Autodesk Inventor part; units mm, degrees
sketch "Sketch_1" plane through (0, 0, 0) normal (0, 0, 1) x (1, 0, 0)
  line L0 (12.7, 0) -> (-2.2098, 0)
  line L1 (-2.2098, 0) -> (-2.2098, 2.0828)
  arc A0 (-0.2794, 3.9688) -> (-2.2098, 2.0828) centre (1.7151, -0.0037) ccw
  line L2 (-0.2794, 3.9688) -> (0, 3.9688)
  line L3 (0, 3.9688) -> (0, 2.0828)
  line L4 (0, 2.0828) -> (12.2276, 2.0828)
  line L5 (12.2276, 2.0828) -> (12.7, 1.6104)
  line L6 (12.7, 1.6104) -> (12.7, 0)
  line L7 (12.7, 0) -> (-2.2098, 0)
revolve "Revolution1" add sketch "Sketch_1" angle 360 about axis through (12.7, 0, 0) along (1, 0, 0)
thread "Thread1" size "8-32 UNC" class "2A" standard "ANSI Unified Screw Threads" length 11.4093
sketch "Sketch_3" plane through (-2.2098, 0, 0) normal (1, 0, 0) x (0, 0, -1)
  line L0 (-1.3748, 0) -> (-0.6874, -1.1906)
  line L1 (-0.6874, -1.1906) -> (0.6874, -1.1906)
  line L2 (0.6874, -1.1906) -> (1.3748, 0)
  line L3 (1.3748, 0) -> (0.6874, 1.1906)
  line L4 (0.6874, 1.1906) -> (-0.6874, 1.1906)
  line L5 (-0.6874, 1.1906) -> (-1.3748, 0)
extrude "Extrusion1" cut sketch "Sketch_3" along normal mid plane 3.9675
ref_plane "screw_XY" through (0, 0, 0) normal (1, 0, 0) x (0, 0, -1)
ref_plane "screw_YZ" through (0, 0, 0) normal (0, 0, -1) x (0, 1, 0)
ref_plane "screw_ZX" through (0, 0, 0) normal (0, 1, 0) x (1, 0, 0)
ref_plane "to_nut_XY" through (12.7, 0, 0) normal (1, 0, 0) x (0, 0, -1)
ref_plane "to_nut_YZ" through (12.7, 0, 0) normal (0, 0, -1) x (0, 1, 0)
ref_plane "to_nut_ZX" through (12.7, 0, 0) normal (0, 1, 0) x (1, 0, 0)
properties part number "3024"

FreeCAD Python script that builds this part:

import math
import FreeCAD as App
import Part
import Sketcher

V = App.Vector
Q = App.Units.Quantity


def add_polygon(sketch, points):
    """Adds a closed chain of lines whose ends are joined by coincident constraints."""
    first, n = sketch.GeometryCount, len(points)
    for a, b in zip(points, points[1:] + points[:1]):
        sketch.addGeometry(Part.LineSegment(App.Vector(*a, 0), App.Vector(*b, 0)), False)
    for i in range(n):
        sketch.addConstraint(Sketcher.Constraint("Coincident", first + i, 2, first + (i + 1) % n, 1))

doc = App.newDocument("Part")
body = doc.addObject("PartDesign::Body", "Body")

# Sketch on XY plane
sketch1 = doc.addObject("Sketcher::SketchObject", "Sketch")
body.addObject(sketch1)
sketch1.AttachmentSupport = (doc.XY_Plane, [""])
sketch1.MapMode = "FlatFace"
sketch1.addGeometry(Part.LineSegment(V(-2.21, 0, 0), V(12.7, 0, 0)), False)
sketch1.addGeometry(Part.LineSegment(V(12.7, 0, 0), V(12.7, 1.61, 0)), False)
sketch1.addGeometry(Part.LineSegment(V(12.7, 1.61, 0), V(12.23, 2.08, 0)), False)
sketch1.addGeometry(Part.LineSegment(V(12.23, 2.08, 0), V(0, 2.08, 0)), False)
sketch1.addGeometry(Part.LineSegment(V(0, 2.08, 0), V(0, 3.97, 0)), False)
sketch1.addGeometry(Part.LineSegment(V(0, 3.97, 0), V(-0.28, 3.97, 0)), False)
sketch1.addGeometry(Part.ArcOfCircle(Part.Circle(V(1.72, 0, 0), V(0, 0, 1), 4.45), math.radians(117), math.radians(152)), False)
sketch1.addGeometry(Part.LineSegment(V(-2.21, 2.08, 0), V(-2.21, 0, 0)), False)
sketch1.addConstraint(Sketcher.Constraint("Coincident", 0, 2, 1, 1))
sketch1.addConstraint(Sketcher.Constraint("Coincident", 1, 2, 2, 1))
sketch1.addConstraint(Sketcher.Constraint("Coincident", 2, 2, 3, 1))
sketch1.addConstraint(Sketcher.Constraint("Coincident", 3, 2, 4, 1))
sketch1.addConstraint(Sketcher.Constraint("Coincident", 4, 2, 5, 1))
sketch1.addConstraint(Sketcher.Constraint("Coincident", 5, 2, 6, 1))
sketch1.addConstraint(Sketcher.Constraint("Coincident", 6, 2, 7, 1))
sketch1.addConstraint(Sketcher.Constraint("Coincident", 7, 2, 0, 1))
sketch1.addConstraint(Sketcher.Constraint("Horizontal", 0))
sketch1.addConstraint(Sketcher.Constraint("Vertical", 1))
sketch1.addConstraint(Sketcher.Constraint("Horizontal", 3))
sketch1.addConstraint(Sketcher.Constraint("Vertical", 4))
sketch1.addConstraint(Sketcher.Constraint("Horizontal", 5))
sketch1.addConstraint(Sketcher.Constraint("Vertical", 7))
sketch1.addConstraint(Sketcher.Constraint("PointOnObject", 0, 2, -1))
sketch1.addConstraint(Sketcher.Constraint("PointOnObject", 3, 2, -2))
sketch1.addConstraint(Sketcher.Constraint("Horizontal", 3, 2, 6, 2))
sketch1.addConstraint(Sketcher.Constraint("Angle", 2, Q("135 deg")))
sketch1.addConstraint(Sketcher.Constraint("Radius", 6, Q("0.175 in")))
sketch1.addConstraint(Sketcher.Constraint("DistanceX", -1, 1, 0, 2, Q("0.5 in")))
sketch1.addConstraint(Sketcher.Constraint("DistanceX", 0, 1, 0, 2, Q("0.587 in")))
sketch1.addConstraint(Sketcher.Constraint("DistanceX", 5, 2, 5, 1, Q("0.011 in")))
sketch1.addConstraint(Sketcher.Constraint("DistanceY", 7, 2, 7, 1, Q("0.082 in")))
sketch1.addConstraint(Sketcher.Constraint("DistanceX", 3, 2, 3, 1, Q("0.4814 in")))
sketch1.addConstraint(Sketcher.Constraint("DistanceY", -1, 1, 4, 2, Q("0.156252 in")))
revolution = doc.addObject("PartDesign::Revolution", "Revolution")
body.addObject(revolution)
revolution.Profile = sketch1
revolution.ReferenceAxis = (sketch1, ["H_Axis"])
revolution.Angle = 360

# Sketch on YZ plane
sketch2 = doc.addObject("Sketcher::SketchObject", "Sketch001")
body.addObject(sketch2)
sketch2.AttachmentSupport = (doc.YZ_Plane, [""])
sketch2.MapMode = "FlatFace"
sketch2.AttachmentOffset = App.Placement(V(0, 0, -0.087 * 25.4), App.Rotation())
add_polygon(sketch2, [(1.2, 0.7), (0, 1.4), (-1.2, 0.7), (-1.2, -0.7), (0, -1.4), (1.2, -0.7)])  # lines 0-5
sketch2.addConstraint(Sketcher.Constraint("Vertical", 2))
sketch2.addConstraint(Sketcher.Constraint("Vertical", 5))
sketch2.addConstraint(Sketcher.Constraint("Symmetric", 0, 2, 3, 2, -1, 1))
sketch2.addConstraint(Sketcher.Constraint("Symmetric", 1, 2, 4, 2, -1, 1))
sketch2.addConstraint(Sketcher.Constraint("PointOnObject", 0, 2, -2))
sketch2.addConstraint(Sketcher.Constraint("Parallel", 0, 3))
sketch2.addConstraint(Sketcher.Constraint("Horizontal", 2, 2, 4, 2))
sketch2.addConstraint(Sketcher.Constraint("Angle", 0, Q("149.9998 deg")))
sketch2.addConstraint(Sketcher.Constraint("DistanceX", 1, 2, -1, 1, Q("0.046874 in")))
sketch2.addConstraint(Sketcher.Constraint("DistanceY", 2, 2, 2, 1, 1.3748))
pocket1 = doc.addObject("PartDesign::Pocket", "Pocket")
body.addObject(pocket1)
pocket1.Profile = sketch2
pocket1.Length = Q("0.1562008 in")
pocket1.Midplane = True

doc.recompute()
